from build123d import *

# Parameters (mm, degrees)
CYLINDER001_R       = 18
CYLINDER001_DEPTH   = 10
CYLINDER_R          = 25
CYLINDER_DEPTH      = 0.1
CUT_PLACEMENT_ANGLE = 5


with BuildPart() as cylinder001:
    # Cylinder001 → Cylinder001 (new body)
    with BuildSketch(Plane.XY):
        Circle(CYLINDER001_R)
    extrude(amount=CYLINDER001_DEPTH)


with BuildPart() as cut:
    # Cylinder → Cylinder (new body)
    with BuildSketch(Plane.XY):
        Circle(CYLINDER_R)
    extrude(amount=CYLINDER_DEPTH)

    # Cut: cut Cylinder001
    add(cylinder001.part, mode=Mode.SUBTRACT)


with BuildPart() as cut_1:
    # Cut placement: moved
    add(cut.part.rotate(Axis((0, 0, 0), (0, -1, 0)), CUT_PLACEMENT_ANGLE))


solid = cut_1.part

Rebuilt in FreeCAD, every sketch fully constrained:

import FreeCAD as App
import Part
import Sketcher

V = App.Vector
Q = App.Units.Quantity

doc = App.newDocument("Part")
params = doc.addObject("Spreadsheet::Sheet", "Params")
for row, (alias, value) in enumerate([
    ("sketch1_diameter", "36 mm"),
    ("pad1_length", "10 mm"),
    ("sketch2_diameter", "50 mm"),
    ("pad2_length", "0.1 mm"),
], start=1):
    params.set(f"A{row}", alias)
    params.set(f"B{row}", "=" + value)
    params.setAlias(f"B{row}", alias)

body = doc.addObject("PartDesign::Body", "Body")

# Sketch on XY plane
sketch1 = doc.addObject("Sketcher::SketchObject", "Sketch")
body.addObject(sketch1)
sketch1.AttachmentSupport = (doc.XY_Plane, [""])
sketch1.MapMode = "FlatFace"
sketch1.addGeometry(Part.Circle(V(0, 0, 0), V(0, 0, 1), 18), False)
sketch1.addConstraint([
    Sketcher.Constraint("Coincident", 0, 3, -1, 1),
    Sketcher.Constraint("Diameter", 0, Q("36 mm")),
])
sketch1.setExpression("Constraints[1]", "Params.sketch1_diameter")
pad1 = doc.addObject("PartDesign::Pad", "Pad")
body.addObject(pad1)
pad1.Profile = sketch1
pad1.setExpression("Length", "Params.pad1_length")
body2 = doc.addObject("PartDesign::Body", "Body001")

# Sketch on XY plane
sketch2 = doc.addObject("Sketcher::SketchObject", "Sketch001")
body2.addObject(sketch2)
sketch2.AttachmentSupport = (doc.getObject("XY_Plane001"), [""])
sketch2.MapMode = "FlatFace"
sketch2.addGeometry(Part.Circle(V(0, 0, 0), V(0, 0, 1), 25), False)
sketch2.addConstraint([
    Sketcher.Constraint("Coincident", 0, 3, -1, 1),
    Sketcher.Constraint("Diameter", 0, Q("50 mm")),
])
sketch2.setExpression("Constraints[1]", "Params.sketch2_diameter")
pad2 = doc.addObject("PartDesign::Pad", "Pad001")
body2.addObject(pad2)
pad2.Profile = sketch2
pad2.setExpression("Length", "Params.pad2_length")
doc.recompute()

boolean = doc.addObject("PartDesign::Boolean", "Boolean")
body2.addObject(boolean)
boolean.Type = "Cut"
boolean.addObjects([body])
body3 = doc.addObject("PartDesign::Body", "Body002")
doc.recompute()

body2.Placement = App.Placement(V(0, 0, 0), App.Rotation(V(0, -1, 0), 5))
boolean2 = doc.addObject("PartDesign::Boolean", "Boolean001")
body3.addObject(boolean2)
boolean2.Type = "Fuse"
boolean2.addObjects([body2])

doc.recompute()
